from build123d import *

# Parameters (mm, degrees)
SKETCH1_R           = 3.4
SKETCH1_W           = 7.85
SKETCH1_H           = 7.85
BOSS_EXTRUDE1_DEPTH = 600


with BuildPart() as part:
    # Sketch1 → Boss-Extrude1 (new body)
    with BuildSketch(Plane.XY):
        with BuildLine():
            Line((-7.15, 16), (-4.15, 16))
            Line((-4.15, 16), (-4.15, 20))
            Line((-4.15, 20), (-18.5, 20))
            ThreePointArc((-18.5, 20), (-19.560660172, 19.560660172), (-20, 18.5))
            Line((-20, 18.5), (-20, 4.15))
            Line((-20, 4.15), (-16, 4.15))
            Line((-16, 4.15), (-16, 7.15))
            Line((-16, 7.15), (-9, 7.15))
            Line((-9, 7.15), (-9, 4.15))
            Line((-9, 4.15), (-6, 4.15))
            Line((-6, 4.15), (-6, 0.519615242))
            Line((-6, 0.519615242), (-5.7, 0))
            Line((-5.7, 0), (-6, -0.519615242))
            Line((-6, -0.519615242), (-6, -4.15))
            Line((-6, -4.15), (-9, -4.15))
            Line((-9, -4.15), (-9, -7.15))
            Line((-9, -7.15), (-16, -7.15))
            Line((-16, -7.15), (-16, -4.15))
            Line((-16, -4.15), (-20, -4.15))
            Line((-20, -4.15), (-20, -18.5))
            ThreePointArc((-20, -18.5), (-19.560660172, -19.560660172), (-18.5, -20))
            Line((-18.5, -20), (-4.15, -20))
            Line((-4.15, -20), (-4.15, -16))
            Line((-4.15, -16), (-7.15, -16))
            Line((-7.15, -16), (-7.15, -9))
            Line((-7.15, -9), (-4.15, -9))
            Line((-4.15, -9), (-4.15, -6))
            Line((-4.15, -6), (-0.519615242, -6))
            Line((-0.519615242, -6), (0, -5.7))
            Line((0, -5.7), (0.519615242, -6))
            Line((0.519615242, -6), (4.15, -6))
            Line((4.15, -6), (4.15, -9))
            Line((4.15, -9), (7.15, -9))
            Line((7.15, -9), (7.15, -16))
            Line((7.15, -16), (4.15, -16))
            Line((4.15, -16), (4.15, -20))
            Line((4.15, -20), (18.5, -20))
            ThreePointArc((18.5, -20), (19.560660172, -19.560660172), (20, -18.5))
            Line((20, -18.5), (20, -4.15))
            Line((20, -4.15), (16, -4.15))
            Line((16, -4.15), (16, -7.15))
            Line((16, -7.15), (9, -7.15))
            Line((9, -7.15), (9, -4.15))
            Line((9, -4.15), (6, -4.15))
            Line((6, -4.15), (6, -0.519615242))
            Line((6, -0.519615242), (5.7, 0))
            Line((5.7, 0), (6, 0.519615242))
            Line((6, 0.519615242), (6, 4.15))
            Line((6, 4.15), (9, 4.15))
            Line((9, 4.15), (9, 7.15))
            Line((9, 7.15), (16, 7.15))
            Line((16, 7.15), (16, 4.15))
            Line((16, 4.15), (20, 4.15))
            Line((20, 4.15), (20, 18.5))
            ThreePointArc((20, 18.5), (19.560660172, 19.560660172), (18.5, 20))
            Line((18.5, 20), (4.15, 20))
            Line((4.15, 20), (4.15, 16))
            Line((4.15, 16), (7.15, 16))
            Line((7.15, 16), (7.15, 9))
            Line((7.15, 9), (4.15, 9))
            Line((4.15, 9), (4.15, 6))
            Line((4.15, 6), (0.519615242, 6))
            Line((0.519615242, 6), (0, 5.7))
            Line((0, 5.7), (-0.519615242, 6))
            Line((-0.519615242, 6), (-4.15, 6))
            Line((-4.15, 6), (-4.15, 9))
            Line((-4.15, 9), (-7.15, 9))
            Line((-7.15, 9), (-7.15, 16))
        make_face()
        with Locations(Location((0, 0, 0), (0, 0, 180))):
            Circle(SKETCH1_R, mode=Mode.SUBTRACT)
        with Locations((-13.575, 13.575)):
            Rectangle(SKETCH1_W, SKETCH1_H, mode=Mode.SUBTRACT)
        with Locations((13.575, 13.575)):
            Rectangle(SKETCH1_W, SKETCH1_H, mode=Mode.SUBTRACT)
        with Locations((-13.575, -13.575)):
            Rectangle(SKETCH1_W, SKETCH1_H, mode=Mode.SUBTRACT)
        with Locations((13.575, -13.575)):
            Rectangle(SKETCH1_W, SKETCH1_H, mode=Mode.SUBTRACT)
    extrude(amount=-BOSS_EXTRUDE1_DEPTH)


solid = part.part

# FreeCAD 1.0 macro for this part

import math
import FreeCAD as App
import Part
import Sketcher
from FreeCAD import Vector
Q = App.Units.Quantity


def add_polygon(sketch, points):
    """Adds a closed chain of lines whose ends are joined by coincident constraints."""
    first, n = sketch.GeometryCount, len(points)
    for a, b in zip(points, points[1:] + points[:1]):
        sketch.addGeometry(Part.LineSegment(App.Vector(*a, 0), App.Vector(*b, 0)), False)
    for i in range(n):
        sketch.addConstraint(Sketcher.Constraint("Coincident", first + i, 2, first + (i + 1) % n, 1))

doc = App.newDocument("Part")
params = doc.addObject("Spreadsheet::Sheet", "Params")
for row, (alias, value) in enumerate([
    ("sketch1_diameter", "6.8 mm"),
    ("sketch1_radius", "1.5 mm"),
    ("sketch1_width", "3 mm"),
    ("sketch1_width2", "4 mm"),
    ("sketch1_width3", "7 mm"),
    ("pad1_length", "600 mm"),
], start=1):
    params.set(f"A{row}", alias)
    params.set(f"B{row}", "=" + value)
    params.setAlias(f"B{row}", alias)

body = doc.addObject("PartDesign::Body", "Body")

# Sketch on XY plane
sketch1 = body.newObject("Sketcher::SketchObject", "Sketch")
sketch1.AttachmentSupport = (doc.getObject("XY_Plane"), [""])
sketch1.MapMode = "FlatFace"
sketch1.addGeometry(Part.LineSegment(Vector(-7.2, 16, 0), Vector(-4.2, 16, 0)), False)  # 0
sketch1.addGeometry(Part.LineSegment(Vector(-4.2, 16, 0), Vector(-4.2, 20, 0)), False)  # 1
sketch1.addGeometry(Part.LineSegment(Vector(-4.2, 20, 0), Vector(-18.5, 20, 0)), False)  # 2
sketch1.addGeometry(Part.ArcOfCircle(Part.Circle(Vector(-18.5, 18.5, 0), Vector(0, 0, 1), 1.5), math.radians(90), math.radians(180)), False)  # 3
sketch1.addGeometry(Part.LineSegment(Vector(-20, 18.5, 0), Vector(-20, 4.2, 0)), False)  # 4
sketch1.addGeometry(Part.LineSegment(Vector(-20, 4.2, 0), Vector(-16, 4.2, 0)), False)  # 5
sketch1.addGeometry(Part.LineSegment(Vector(-16, 4.2, 0), Vector(-16, 7.2, 0)), False)  # 6
sketch1.addGeometry(Part.LineSegment(Vector(-16, 7.2, 0), Vector(-9, 7.2, 0)), False)  # 7
sketch1.addGeometry(Part.LineSegment(Vector(-9, 7.2, 0), Vector(-9, 4.2, 0)), False)  # 8
sketch1.addGeometry(Part.LineSegment(Vector(-9, 4.2, 0), Vector(-6, 4.2, 0)), False)  # 9
sketch1.addGeometry(Part.LineSegment(Vector(-6, 4.2, 0), Vector(-6, 0.5, 0)), False)  # 10
sketch1.addGeometry(Part.LineSegment(Vector(-6, 0.5, 0), Vector(-5.7, 0, 0)), False)  # 11
sketch1.addGeometry(Part.LineSegment(Vector(-5.7, 0, 0), Vector(-6, -0.5, 0)), False)  # 12
sketch1.addGeometry(Part.LineSegment(Vector(-6, -0.5, 0), Vector(-6, -4.2, 0)), False)  # 13
sketch1.addGeometry(Part.LineSegment(Vector(-6, -4.2, 0), Vector(-9, -4.2, 0)), False)  # 14
sketch1.addGeometry(Part.LineSegment(Vector(-9, -4.2, 0), Vector(-9, -7.2, 0)), False)  # 15
sketch1.addGeometry(Part.LineSegment(Vector(-9, -7.2, 0), Vector(-16, -7.2, 0)), False)  # 16
sketch1.addGeometry(Part.LineSegment(Vector(-16, -7.2, 0), Vector(-16, -4.2, 0)), False)  # 17
sketch1.addGeometry(Part.LineSegment(Vector(-16, -4.2, 0), Vector(-20, -4.2, 0)), False)  # 18
sketch1.addGeometry(Part.LineSegment(Vector(-20, -4.2, 0), Vector(-20, -18.5, 0)), False)  # 19
sketch1.addGeometry(Part.ArcOfCircle(Part.Circle(Vector(-18.5, -18.5, 0), Vector(0, 0, 1), 1.5), math.radians(180), math.radians(270)), False)  # 20
sketch1.addGeometry(Part.LineSegment(Vector(-18.5, -20, 0), Vector(-4.2, -20, 0)), False)  # 21
sketch1.addGeometry(Part.LineSegment(Vector(-4.2, -20, 0), Vector(-4.2, -16, 0)), False)  # 22
sketch1.addGeometry(Part.LineSegment(Vector(-4.2, -16, 0), Vector(-7.2, -16, 0)), False)  # 23
sketch1.addGeometry(Part.LineSegment(Vector(-7.2, -16, 0), Vector(-7.2, -9, 0)), False)  # 24
sketch1.addGeometry(Part.LineSegment(Vector(-7.2, -9, 0), Vector(-4.2, -9, 0)), False)  # 25
sketch1.addGeometry(Part.LineSegment(Vector(-4.2, -9, 0), Vector(-4.2, -6, 0)), False)  # 26
sketch1.addGeometry(Part.LineSegment(Vector(-4.2, -6, 0), Vector(-0.5, -6, 0)), False)  # 27
sketch1.addGeometry(Part.LineSegment(Vector(-0.5, -6, 0), Vector(0, -5.7, 0)), False)  # 28
sketch1.addGeometry(Part.LineSegment(Vector(0, -5.7, 0), Vector(0.5, -6, 0)), False)  # 29
sketch1.addGeometry(Part.LineSegment(Vector(0.5, -6, 0), Vector(4.2, -6, 0)), False)  # 30
sketch1.addGeometry(Part.LineSegment(Vector(4.2, -6, 0), Vector(4.2, -9, 0)), False)  # 31
sketch1.addGeometry(Part.LineSegment(Vector(4.2, -9, 0), Vector(7.2, -9, 0)), False)  # 32
sketch1.addGeometry(Part.LineSegment(Vector(7.2, -9, 0), Vector(7.2, -16, 0)), False)  # 33
sketch1.addGeometry(Part.LineSegment(Vector(7.2, -16, 0), Vector(4.2, -16, 0)), False)  # 34
sketch1.addGeometry(Part.LineSegment(Vector(4.2, -16, 0), Vector(4.2, -20, 0)), False)  # 35
sketch1.addGeometry(Part.LineSegment(Vector(4.2, -20, 0), Vector(18.5, -20, 0)), False)  # 36
sketch1.addGeometry(Part.ArcOfCircle(Part.Circle(Vector(18.5, -18.5, 0), Vector(0, 0, 1), 1.5), math.radians(-90), math.radians(0)), False)  # 37
sketch1.addGeometry(Part.LineSegment(Vector(20, -18.5, 0), Vector(20, -4.2, 0)), False)  # 38
sketch1.addGeometry(Part.LineSegment(Vector(20, -4.2, 0), Vector(16, -4.2, 0)), False)  # 39
sketch1.addGeometry(Part.LineSegment(Vector(16, -4.2, 0), Vector(16, -7.2, 0)), False)  # 40
sketch1.addGeometry(Part.LineSegment(Vector(16, -7.2, 0), Vector(9, -7.2, 0)), False)  # 41
sketch1.addGeometry(Part.LineSegment(Vector(9, -7.2, 0), Vector(9, -4.2, 0)), False)  # 42
sketch1.addGeometry(Part.LineSegment(Vector(9, -4.2, 0), Vector(6, -4.2, 0)), False)  # 43
sketch1.addGeometry(Part.LineSegment(Vector(6, -4.2, 0), Vector(6, -0.5, 0)), False)  # 44
sketch1.addGeometry(Part.LineSegment(Vector(6, -0.5, 0), Vector(5.7, 0, 0)), False)  # 45
sketch1.addGeometry(Part.LineSegment(Vector(5.7, 0, 0), Vector(6, 0.5, 0)), False)  # 46
sketch1.addGeometry(Part.LineSegment(Vector(6, 0.5, 0), Vector(6, 4.2, 0)), False)  # 47
sketch1.addGeometry(Part.LineSegment(Vector(6, 4.2, 0), Vector(9, 4.2, 0)), False)  # 48
sketch1.addGeometry(Part.LineSegment(Vector(9, 4.2, 0), Vector(9, 7.2, 0)), False)  # 49
sketch1.addGeometry(Part.LineSegment(Vector(9, 7.2, 0), Vector(16, 7.2, 0)), False)  # 50
sketch1.addGeometry(Part.LineSegment(Vector(16, 7.2, 0), Vector(16, 4.2, 0)), False)  # 51
sketch1.addGeometry(Part.LineSegment(Vector(16, 4.2, 0), Vector(20, 4.2, 0)), False)  # 52
sketch1.addGeometry(Part.LineSegment(Vector(20, 4.2, 0), Vector(20, 18.5, 0)), False)  # 53
sketch1.addGeometry(Part.ArcOfCircle(Part.Circle(Vector(18.5, 18.5, 0), Vector(0, 0, 1), 1.5), math.radians(0), math.radians(90)), False)  # 54
sketch1.addGeometry(Part.LineSegment(Vector(18.5, 20, 0), Vector(4.2, 20, 0)), False)  # 55
sketch1.addGeometry(Part.LineSegment(Vector(4.2, 20, 0), Vector(4.2, 16, 0)), False)  # 56
sketch1.addGeometry(Part.LineSegment(Vector(4.2, 16, 0), Vector(7.2, 16, 0)), False)  # 57
sketch1.addGeometry(Part.LineSegment(Vector(7.2, 16, 0), Vector(7.2, 9, 0)), False)  # 58
sketch1.addGeometry(Part.LineSegment(Vector(7.2, 9, 0), Vector(4.2, 9, 0)), False)  # 59
sketch1.addGeometry(Part.LineSegment(Vector(4.2, 9, 0), Vector(4.2, 6, 0)), False)  # 60
sketch1.addGeometry(Part.LineSegment(Vector(4.2, 6, 0), Vector(0.5, 6, 0)), False)  # 61
sketch1.addGeometry(Part.LineSegment(Vector(0.5, 6, 0), Vector(0, 5.7, 0)), False)  # 62
sketch1.addGeometry(Part.LineSegment(Vector(0, 5.7, 0), Vector(-0.5, 6, 0)), False)  # 63
sketch1.addGeometry(Part.LineSegment(Vector(-0.5, 6, 0), Vector(-4.2, 6, 0)), False)  # 64
sketch1.addGeometry(Part.LineSegment(Vector(-4.2, 6, 0), Vector(-4.2, 9, 0)), False)  # 65
sketch1.addGeometry(Part.LineSegment(Vector(-4.2, 9, 0), Vector(-7.2, 9, 0)), False)  # 66
sketch1.addGeometry(Part.LineSegment(Vector(-7.2, 9, 0), Vector(-7.2, 16, 0)), False)  # 67
add_polygon(sketch1, [(-9.7, -17.5), (-17.5, -17.5), (-17.5, -9.7), (-9.7, -9.7)])  # lines 68-71
add_polygon(sketch1, [(17.5, -17.5), (9.7, -17.5), (9.7, -9.7), (17.5, -9.7)])  # lines 72-75
add_polygon(sketch1, [(-9.7, 9.7), (-17.5, 9.7), (-17.5, 17.5), (-9.7, 17.5)])  # lines 76-79
sketch1.addGeometry(Part.Circle(Vector(0, 0, 0), Vector(0, 0, 1), 3.4), False)  # 80
add_polygon(sketch1, [(17.5, 9.7), (9.7, 9.7), (9.7, 17.5), (17.5, 17.5)])  # lines 81-84
sketch1.addConstraint(Sketcher.Constraint("Coincident", 0, 2, 1, 1))
sketch1.addConstraint(Sketcher.Constraint("Coincident", 1, 2, 2, 1))
sketch1.addConstraint(Sketcher.Constraint("Tangent", 2, 2, 3, 1))
sketch1.addConstraint(Sketcher.Constraint("Tangent", 3, 2, 4, 1))
sketch1.addConstraint(Sketcher.Constraint("Coincident", 4, 2, 5, 1))
sketch1.addConstraint(Sketcher.Constraint("Coincident", 5, 2, 6, 1))
sketch1.addConstraint(Sketcher.Constraint("Coincident", 6, 2, 7, 1))
sketch1.addConstraint(Sketcher.Constraint("Coincident", 7, 2, 8, 1))
sketch1.addConstraint(Sketcher.Constraint("Coincident", 8, 2, 9, 1))
sketch1.addConstraint(Sketcher.Constraint("Coincident", 9, 2, 10, 1))
sketch1.addConstraint(Sketcher.Constraint("Coincident", 10, 2, 11, 1))
sketch1.addConstraint(Sketcher.Constraint("Coincident", 11, 2, 12, 1))
sketch1.addConstraint(Sketcher.Constraint("Coincident", 12, 2, 13, 1))
sketch1.addConstraint(Sketcher.Constraint("Coincident", 13, 2, 14, 1))
sketch1.addConstraint(Sketcher.Constraint("Coincident", 14, 2, 15, 1))
sketch1.addConstraint(Sketcher.Constraint("Coincident", 15, 2, 16, 1))
sketch1.addConstraint(Sketcher.Constraint("Coincident", 16, 2, 17, 1))
sketch1.addConstraint(Sketcher.Constraint("Coincident", 17, 2, 18, 1))
sketch1.addConstraint(Sketcher.Constraint("Coincident", 18, 2, 19, 1))
sketch1.addConstraint(Sketcher.Constraint("Tangent", 19, 2, 20, 1))
sketch1.addConstraint(Sketcher.Constraint("Tangent", 20, 2, 21, 1))
sketch1.addConstraint(Sketcher.Constraint("Coincident", 21, 2, 22, 1))
sketch1.addConstraint(Sketcher.Constraint("Coincident", 22, 2, 23, 1))
sketch1.addConstraint(Sketcher.Constraint("Coincident", 23, 2, 24, 1))
sketch1.addConstraint(Sketcher.Constraint("Coincident", 24, 2, 25, 1))
sketch1.addConstraint(Sketcher.Constraint("Coincident", 25, 2, 26, 1))
sketch1.addConstraint(Sketcher.Constraint("Coincident", 26, 2, 27, 1))
sketch1.addConstraint(Sketcher.Constraint("Coincident", 27, 2, 28, 1))
sketch1.addConstraint(Sketcher.Constraint("Coincident", 28, 2, 29, 1))
sketch1.addConstraint(Sketcher.Constraint("Coincident", 29, 2, 30, 1))
sketch1.addConstraint(Sketcher.Constraint("Coincident", 30, 2, 31, 1))
sketch1.addConstraint(Sketcher.Constraint("Coincident", 31, 2, 32, 1))
sketch1.addConstraint(Sketcher.Constraint("Coincident", 32, 2, 33, 1))
sketch1.addConstraint(Sketcher.Constraint("Coincident", 33, 2, 34, 1))
sketch1.addConstraint(Sketcher.Constraint("Coincident", 34, 2, 35, 1))
sketch1.addConstraint(Sketcher.Constraint("Coincident", 35, 2, 36, 1))
sketch1.addConstraint(Sketcher.Constraint("Tangent", 36, 2, 37, 1))
sketch1.addConstraint(Sketcher.Constraint("Tangent", 37, 2, 38, 1))
sketch1.addConstraint(Sketcher.Constraint("Coincident", 38, 2, 39, 1))
sketch1.addConstraint(Sketcher.Constraint("Coincident", 39, 2, 40, 1))
sketch1.addConstraint(Sketcher.Constraint("Coincident", 40, 2, 41, 1))
sketch1.addConstraint(Sketcher.Constraint("Coincident", 41, 2, 42, 1))
sketch1.addConstraint(Sketcher.Constraint("Coincident", 42, 2, 43, 1))
sketch1.addConstraint(Sketcher.Constraint("Coincident", 43, 2, 44, 1))
sketch1.addConstraint(Sketcher.Constraint("Coincident", 44, 2, 45, 1))
sketch1.addConstraint(Sketcher.Constraint("Coincident", 45, 2, 46, 1))
sketch1.addConstraint(Sketcher.Constraint("Coincident", 46, 2, 47, 1))
sketch1.addConstraint(Sketcher.Constraint("Coincident", 47, 2, 48, 1))
sketch1.addConstraint(Sketcher.Constraint("Coincident", 48, 2, 49, 1))
sketch1.addConstraint(Sketcher.Constraint("Coincident", 49, 2, 50, 1))
sketch1.addConstraint(Sketcher.Constraint("Coincident", 50, 2, 51, 1))
sketch1.addConstraint(Sketcher.Constraint("Coincident", 51, 2, 52, 1))
sketch1.addConstraint(Sketcher.Constraint("Coincident", 52, 2, 53, 1))
sketch1.addConstraint(Sketcher.Constraint("Tangent", 53, 2, 54, 1))
sketch1.addConstraint(Sketcher.Constraint("Tangent", 54, 2, 55, 1))
sketch1.addConstraint(Sketcher.Constraint("Coincident", 55, 2, 56, 1))
sketch1.addConstraint(Sketcher.Constraint("Coincident", 56, 2, 57, 1))
sketch1.addConstraint(Sketcher.Constraint("Coincident", 57, 2, 58, 1))
sketch1.addConstraint(Sketcher.Constraint("Coincident", 58, 2, 59, 1))
sketch1.addConstraint(Sketcher.Constraint("Coincident", 59, 2, 60, 1))
sketch1.addConstraint(Sketcher.Constraint("Coincident", 60, 2, 61, 1))
sketch1.addConstraint(Sketcher.Constraint("Coincident", 61, 2, 62, 1))
sketch1.addConstraint(Sketcher.Constraint("Coincident", 62, 2, 63, 1))
sketch1.addConstraint(Sketcher.Constraint("Coincident", 63, 2, 64, 1))
sketch1.addConstraint(Sketcher.Constraint("Coincident", 64, 2, 65, 1))
sketch1.addConstraint(Sketcher.Constraint("Coincident", 65, 2, 66, 1))
sketch1.addConstraint(Sketcher.Constraint("Coincident", 66, 2, 67, 1))
sketch1.addConstraint(Sketcher.Constraint("Coincident", 67, 2, 0, 1))
sketch1.addConstraint(Sketcher.Constraint("Horizontal", 0))
sketch1.addConstraint(Sketcher.Constraint("Vertical", 1))
sketch1.addConstraint(Sketcher.Constraint("Horizontal", 2))
sketch1.addConstraint(Sketcher.Constraint("Vertical", 4))
sketch1.addConstraint(Sketcher.Constraint("Horizontal", 5))
sketch1.addConstraint(Sketcher.Constraint("Vertical", 6))
sketch1.addConstraint(Sketcher.Constraint("Horizontal", 7))
sketch1.addConstraint(Sketcher.Constraint("Vertical", 8))
sketch1.addConstraint(Sketcher.Constraint("Horizontal", 9))
sketch1.addConstraint(Sketcher.Constraint("Vertical", 10))
sketch1.addConstraint(Sketcher.Constraint("Vertical", 13))
sketch1.addConstraint(Sketcher.Constraint("Horizontal", 14))
sketch1.addConstraint(Sketcher.Constraint("Vertical", 15))
sketch1.addConstraint(Sketcher.Constraint("Horizontal", 16))
sketch1.addConstraint(Sketcher.Constraint("Vertical", 17))
sketch1.addConstraint(Sketcher.Constraint("Horizontal", 18))
sketch1.addConstraint(Sketcher.Constraint("Vertical", 19))
sketch1.addConstraint(Sketcher.Constraint("Horizontal", 21))
sketch1.addConstraint(Sketcher.Constraint("Vertical", 22))
sketch1.addConstraint(Sketcher.Constraint("Horizontal", 23))
sketch1.addConstraint(Sketcher.Constraint("Vertical", 24))
sketch1.addConstraint(Sketcher.Constraint("Horizontal", 25))
sketch1.addConstraint(Sketcher.Constraint("Vertical", 26))
sketch1.addConstraint(Sketcher.Constraint("Horizontal", 27))
sketch1.addConstraint(Sketcher.Constraint("Horizontal", 30))
sketch1.addConstraint(Sketcher.Constraint("Vertical", 31))
sketch1.addConstraint(Sketcher.Constraint("Horizontal", 32))
sketch1.addConstraint(Sketcher.Constraint("Vertical", 33))
sketch1.addConstraint(Sketcher.Constraint("Horizontal", 34))
sketch1.addConstraint(Sketcher.Constraint("Vertical", 35))
sketch1.addConstraint(Sketcher.Constraint("Horizontal", 36))
sketch1.addConstraint(Sketcher.Constraint("Vertical", 38))
sketch1.addConstraint(Sketcher.Constraint("Horizontal", 39))
sketch1.addConstraint(Sketcher.Constraint("Vertical", 40))
sketch1.addConstraint(Sketcher.Constraint("Horizontal", 41))
sketch1.addConstraint(Sketcher.Constraint("Vertical", 42))
sketch1.addConstraint(Sketcher.Constraint("Horizontal", 43))
sketch1.addConstraint(Sketcher.Constraint("Vertical", 44))
sketch1.addConstraint(Sketcher.Constraint("Vertical", 47))
sketch1.addConstraint(Sketcher.Constraint("Horizontal", 48))
sketch1.addConstraint(Sketcher.Constraint("Vertical", 49))
sketch1.addConstraint(Sketcher.Constraint("Horizontal", 50))
sketch1.addConstraint(Sketcher.Constraint("Vertical", 51))
sketch1.addConstraint(Sketcher.Constraint("Horizontal", 52))
sketch1.addConstraint(Sketcher.Constraint("Vertical", 53))
sketch1.addConstraint(Sketcher.Constraint("Horizontal", 55))
sketch1.addConstraint(Sketcher.Constraint("Vertical", 56))
sketch1.addConstraint(Sketcher.Constraint("Horizontal", 57))
sketch1.addConstraint(Sketcher.Constraint("Vertical", 58))
sketch1.addConstraint(Sketcher.Constraint("Horizontal", 59))
sketch1.addConstraint(Sketcher.Constraint("Vertical", 60))
sketch1.addConstraint(Sketcher.Constraint("Horizontal", 61))
sketch1.addConstraint(Sketcher.Constraint("Horizontal", 64))
sketch1.addConstraint(Sketcher.Constraint("Vertical", 65))
sketch1.addConstraint(Sketcher.Constraint("Horizontal", 66))
sketch1.addConstraint(Sketcher.Constraint("Vertical", 67))
sketch1.addConstraint(Sketcher.Constraint("Horizontal", 68))
sketch1.addConstraint(Sketcher.Constraint("Vertical", 69))
sketch1.addConstraint(Sketcher.Constraint("Horizontal", 70))
sketch1.addConstraint(Sketcher.Constraint("Vertical", 71))
sketch1.addConstraint(Sketcher.Constraint("Horizontal", 72))
sketch1.addConstraint(Sketcher.Constraint("Vertical", 73))
sketch1.addConstraint(Sketcher.Constraint("Horizontal", 74))
sketch1.addConstraint(Sketcher.Constraint("Vertical", 75))
sketch1.addConstraint(Sketcher.Constraint("Horizontal", 76))
sketch1.addConstraint(Sketcher.Constraint("Vertical", 77))
sketch1.addConstraint(Sketcher.Constraint("Horizontal", 78))
sketch1.addConstraint(Sketcher.Constraint("Vertical", 79))
sketch1.addConstraint(Sketcher.Constraint("Horizontal", 81))
sketch1.addConstraint(Sketcher.Constraint("Vertical", 82))
sketch1.addConstraint(Sketcher.Constraint("Horizontal", 83))
sketch1.addConstraint(Sketcher.Constraint("Vertical", 84))
sketch1.addConstraint(Sketcher.Constraint("Coincident", 80, 3, -1, 1))
sketch1.addConstraint(Sketcher.Constraint("Equal", 3, 20))
sketch1.addConstraint(Sketcher.Constraint("Equal", 20, 37))
sketch1.addConstraint(Sketcher.Constraint("Equal", 37, 54))
sketch1.addConstraint(Sketcher.Constraint("Symmetric", 3, 3, 37, 3, -1, 1))
sketch1.addConstraint(Sketcher.Constraint("Symmetric", 20, 3, 54, 3, -1, 1))
sketch1.addConstraint(Sketcher.Constraint("Symmetric", 0, 2, 34, 2, -1, 1))
sketch1.addConstraint(Sketcher.Constraint("Symmetric", 5, 2, 39, 2, -1, 1))
sketch1.addConstraint(Sketcher.Constraint("Symmetric", 7, 2, 41, 2, -1, 1))
sketch1.addConstraint(Sketcher.Constraint("Symmetric", 9, 2, 43, 2, -1, 1))
sketch1.addConstraint(Sketcher.Constraint("Symmetric", 11, 2, 45, 2, -1, 1))
sketch1.addConstraint(Sketcher.Constraint("Symmetric", 12, 2, 46, 2, -1, 1))
sketch1.addConstraint(Sketcher.Constraint("Symmetric", 14, 2, 48, 2, -1, 1))
sketch1.addConstraint(Sketcher.Constraint("Symmetric", 16, 2, 50, 2, -1, 1))
sketch1.addConstraint(Sketcher.Constraint("Symmetric", 22, 2, 56, 2, -1, 1))
sketch1.addConstraint(Sketcher.Constraint("Symmetric", 24, 2, 58, 2, -1, 1))
sketch1.addConstraint(Sketcher.Constraint("Symmetric", 26, 2, 60, 2, -1, 1))
sketch1.addConstraint(Sketcher.Constraint("Symmetric", 28, 2, 62, 2, -1, 1))
sketch1.addConstraint(Sketcher.Constraint("Symmetric", 29, 2, 63, 2, -1, 1))
sketch1.addConstraint(Sketcher.Constraint("Symmetric", 31, 2, 65, 2, -1, 1))
sketch1.addConstraint(Sketcher.Constraint("Symmetric", 74, 2, 76, 2, -1, 1))
sketch1.addConstraint(Sketcher.Constraint("Symmetric", 72, 2, 78, 2, -1, 1))
sketch1.addConstraint(Sketcher.Constraint("Symmetric", 70, 2, 81, 2, -1, 1))
sketch1.addConstraint(Sketcher.Constraint("Symmetric", 68, 2, 83, 2, -1, 1))
sketch1.addConstraint(Sketcher.Constraint("Symmetric", 20, 3, 37, 3, -2))
sketch1.addConstraint(Sketcher.Constraint("Symmetric", 27, 2, 29, 2, -2))
sketch1.addConstraint(Sketcher.Constraint("Symmetric", 25, 2, 31, 2, -2))
sketch1.addConstraint(Sketcher.Constraint("Symmetric", 23, 2, 33, 2, -2))
sketch1.addConstraint(Sketcher.Constraint("Symmetric", 17, 2, 39, 2, -2))
sketch1.addConstraint(Sketcher.Constraint("Symmetric", 15, 2, 41, 2, -2))
sketch1.addConstraint(Sketcher.Constraint("Symmetric", 13, 2, 43, 2, -2))
sketch1.addConstraint(Sketcher.Constraint("Symmetric", 71, 2, 72, 2, -2))
sketch1.addConstraint(Sketcher.Constraint("Symmetric", 69, 2, 74, 2, -2))
sketch1.addConstraint(Sketcher.Constraint("PointOnObject", 11, 2, -1))
sketch1.addConstraint(Sketcher.Constraint("PointOnObject", 28, 2, -2))
sketch1.addConstraint(Sketcher.Constraint("Perpendicular", 11, 28))
sketch1.addConstraint(Sketcher.Constraint("Perpendicular", 12, 29))
sketch1.addConstraint(Sketcher.Constraint("Perpendicular", 28, 45))
sketch1.addConstraint(Sketcher.Constraint("Perpendicular", 45, 62))
sketch1.addConstraint(Sketcher.Constraint("Horizontal", 5, 2, 8, 2))
sketch1.addConstraint(Sketcher.Constraint("Horizontal", 48, 2, 51, 2))
sketch1.addConstraint(Sketcher.Constraint("Vertical", 1, 2, 21, 2))
sketch1.addConstraint(Sketcher.Constraint("Vertical", 22, 2, 25, 2))
sketch1.addConstraint(Sketcher.Constraint("Vertical", 24, 2, 66, 2))
sketch1.addConstraint(Sketcher.Constraint("Equal", 0, 9))
sketch1.addConstraint(Sketcher.Constraint("Equal", 52, 1))
sketch1.addConstraint(Sketcher.Constraint("Equal", 55, 4))
sketch1.addConstraint(Sketcher.Constraint("Equal", 66, 6))
sketch1.addConstraint(Sketcher.Constraint("Equal", 64, 10))
sketch1.addConstraint(Sketcher.Constraint("Equal", 50, 24))
sketch1.addConstraint(Sketcher.Constraint("Equal", 17, 26))
sketch1.addConstraint(Sketcher.Constraint("Equal", 83, 69))
sketch1.addConstraint(Sketcher.Constraint("Equal", 12, 28))
sketch1.addConstraint(Sketcher.Constraint("Diameter", 80, Q("6.8 mm")))
sketch1.addConstraint(Sketcher.Constraint("Radius", 3, Q("1.5 mm")))
sketch1.addConstraint(Sketcher.Constraint("DistanceX", 0, 1, 0, 2, Q("3 mm")))
sketch1.addConstraint(Sketcher.Constraint("DistanceX", 5, 1, 5, 2, Q("4 mm")))
sketch1.addConstraint(Sketcher.Constraint("DistanceX", 7, 1, 7, 2, Q("7 mm")))
sketch1.addConstraint(Sketcher.Constraint("Angle", 11, Q("-60 deg")))
sketch1.addConstraint(Sketcher.Constraint("DistanceY", -1, 1, 0, 2, Q("16 mm")))
sketch1.addConstraint(Sketcher.Constraint("Distance", 11, Q("0.6 mm")))
sketch1.addConstraint(Sketcher.Constraint("DistanceX", 2, 2, 2, 1, Q("14.35 mm")))
sketch1.addConstraint(Sketcher.Constraint("DistanceX", 68, 2, 68, 1, Q("7.85 mm")))
sketch1.addConstraint(Sketcher.Constraint("DistanceX", 68, 2, -1, 1, Q("17.5 mm")))
sketch1.addConstraint(Sketcher.Constraint("DistanceY", 68, 2, -1, 1, Q("17.5 mm")))
sketch1.setExpression("Constraints[209]", "Params.sketch1_diameter")
sketch1.setExpression("Constraints[210]", "Params.sketch1_radius")
sketch1.setExpression("Constraints[211]", "Params.sketch1_width")
sketch1.setExpression("Constraints[212]", "Params.sketch1_width2")
sketch1.setExpression("Constraints[213]", "Params.sketch1_width3")
pad1 = body.newObject("PartDesign::Pad", "Pad")
pad1.Profile = sketch1
pad1.setExpression("Length", "Params.pad1_length")
pad1.Reversed = True

doc.recompute()
